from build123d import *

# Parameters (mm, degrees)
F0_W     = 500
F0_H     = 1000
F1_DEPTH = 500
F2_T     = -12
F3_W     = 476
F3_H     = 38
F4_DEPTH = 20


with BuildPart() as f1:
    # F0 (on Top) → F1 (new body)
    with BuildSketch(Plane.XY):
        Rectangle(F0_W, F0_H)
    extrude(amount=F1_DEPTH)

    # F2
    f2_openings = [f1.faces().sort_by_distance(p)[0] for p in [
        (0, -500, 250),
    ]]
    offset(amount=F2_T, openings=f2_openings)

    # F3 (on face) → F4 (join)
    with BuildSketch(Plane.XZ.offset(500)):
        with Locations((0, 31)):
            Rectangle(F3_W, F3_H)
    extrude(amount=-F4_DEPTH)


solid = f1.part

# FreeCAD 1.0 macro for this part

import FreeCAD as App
import Part
import Sketcher

V = App.Vector


def faces_at(feature, points):
    """Names of the faces that lie closest to the given points."""
    faces = feature.Shape.Faces
    near = lambda p: min(range(len(faces)), key=lambda i: faces[i].distToShape(Part.Vertex(*p))[0])
    return sorted({f"Face{near(p) + 1}" for p in points})

doc = App.newDocument("Part")
body = doc.addObject("PartDesign::Body", "Body")

sketch1 = body.newObject("Sketcher::SketchObject", "Sketch")
sketch1.AttachmentSupport = (doc.getObject("XY_Plane"), [""])
sketch1.MapMode = "FlatFace"
sketch1.addGeometry([
    Part.LineSegment(V(-250, 500, 0), V(-250, -500, 0)),
    Part.LineSegment(V(-250, -500, 0), V(250, -500, 0)),
    Part.LineSegment(V(250, -500, 0), V(250, 500, 0)),
    Part.LineSegment(V(250, 500, 0), V(-250, 500, 0)),
], False)
sketch1.addConstraint([
    Sketcher.Constraint("Coincident", 0, 2, 1, 1),
    Sketcher.Constraint("Coincident", 1, 2, 2, 1),
    Sketcher.Constraint("Coincident", 2, 2, 3, 1),
    Sketcher.Constraint("Coincident", 3, 2, 0, 1),
    Sketcher.Constraint("Vertical", 0),
    Sketcher.Constraint("Horizontal", 1),
    Sketcher.Constraint("Vertical", 2),
    Sketcher.Constraint("Horizontal", 3),
    Sketcher.Constraint("Symmetric", 0, 2, 2, 2, -1, 1),
    Sketcher.Constraint("DistanceX", 1, 1, 1, 2, 500.0),
    Sketcher.Constraint("DistanceY", 0, 2, 0, 1, 1000.0),
])
pad1 = body.newObject("PartDesign::Pad", "Pad")
pad1.Profile = sketch1
pad1.Length = 500
doc.recompute()

thickness = body.newObject("PartDesign::Thickness", "Thickness")
thickness.Base = (pad1, faces_at(pad1, [(0, -500, 250)]))
thickness.Value = 12
thickness.Reversed = True
thickness.Join = "Arc"

sketch2 = body.newObject("Sketcher::SketchObject", "Sketch001")
sketch2.AttachmentSupport = (doc.getObject("XZ_Plane"), [""])
sketch2.MapMode = "FlatFace"
sketch2.AttachmentOffset = App.Placement(V(0, 0, 500), App.Rotation())
sketch2.addGeometry([
    Part.LineSegment(V(-238, 50, 0), V(-238, 12, 0)),
    Part.LineSegment(V(-238, 12, 0), V(238, 12, 0)),
    Part.LineSegment(V(238, 12, 0), V(238, 50, 0)),
    Part.LineSegment(V(238, 50, 0), V(-238, 50, 0)),
], False)
sketch2.addConstraint([
    Sketcher.Constraint("Coincident", 0, 2, 1, 1),
    Sketcher.Constraint("Coincident", 1, 2, 2, 1),
    Sketcher.Constraint("Coincident", 2, 2, 3, 1),
    Sketcher.Constraint("Coincident", 3, 2, 0, 1),
    Sketcher.Constraint("Vertical", 0),
    Sketcher.Constraint("Horizontal", 1),
    Sketcher.Constraint("Vertical", 2),
    Sketcher.Constraint("Horizontal", 3),
    Sketcher.Constraint("DistanceX", 1, 1, 1, 2, 476.0),
    Sketcher.Constraint("DistanceY", 0, 2, 0, 1, 38.0),
    Sketcher.Constraint("DistanceX", 0, 2, -1, 1, 238.0),
    Sketcher.Constraint("DistanceY", -1, 1, 0, 2, 12.0),
])
pad2 = body.newObject("PartDesign::Pad", "Pad001")
pad2.Profile = sketch2
pad2.Length = 20
pad2.Reversed = True

doc.recompute()
